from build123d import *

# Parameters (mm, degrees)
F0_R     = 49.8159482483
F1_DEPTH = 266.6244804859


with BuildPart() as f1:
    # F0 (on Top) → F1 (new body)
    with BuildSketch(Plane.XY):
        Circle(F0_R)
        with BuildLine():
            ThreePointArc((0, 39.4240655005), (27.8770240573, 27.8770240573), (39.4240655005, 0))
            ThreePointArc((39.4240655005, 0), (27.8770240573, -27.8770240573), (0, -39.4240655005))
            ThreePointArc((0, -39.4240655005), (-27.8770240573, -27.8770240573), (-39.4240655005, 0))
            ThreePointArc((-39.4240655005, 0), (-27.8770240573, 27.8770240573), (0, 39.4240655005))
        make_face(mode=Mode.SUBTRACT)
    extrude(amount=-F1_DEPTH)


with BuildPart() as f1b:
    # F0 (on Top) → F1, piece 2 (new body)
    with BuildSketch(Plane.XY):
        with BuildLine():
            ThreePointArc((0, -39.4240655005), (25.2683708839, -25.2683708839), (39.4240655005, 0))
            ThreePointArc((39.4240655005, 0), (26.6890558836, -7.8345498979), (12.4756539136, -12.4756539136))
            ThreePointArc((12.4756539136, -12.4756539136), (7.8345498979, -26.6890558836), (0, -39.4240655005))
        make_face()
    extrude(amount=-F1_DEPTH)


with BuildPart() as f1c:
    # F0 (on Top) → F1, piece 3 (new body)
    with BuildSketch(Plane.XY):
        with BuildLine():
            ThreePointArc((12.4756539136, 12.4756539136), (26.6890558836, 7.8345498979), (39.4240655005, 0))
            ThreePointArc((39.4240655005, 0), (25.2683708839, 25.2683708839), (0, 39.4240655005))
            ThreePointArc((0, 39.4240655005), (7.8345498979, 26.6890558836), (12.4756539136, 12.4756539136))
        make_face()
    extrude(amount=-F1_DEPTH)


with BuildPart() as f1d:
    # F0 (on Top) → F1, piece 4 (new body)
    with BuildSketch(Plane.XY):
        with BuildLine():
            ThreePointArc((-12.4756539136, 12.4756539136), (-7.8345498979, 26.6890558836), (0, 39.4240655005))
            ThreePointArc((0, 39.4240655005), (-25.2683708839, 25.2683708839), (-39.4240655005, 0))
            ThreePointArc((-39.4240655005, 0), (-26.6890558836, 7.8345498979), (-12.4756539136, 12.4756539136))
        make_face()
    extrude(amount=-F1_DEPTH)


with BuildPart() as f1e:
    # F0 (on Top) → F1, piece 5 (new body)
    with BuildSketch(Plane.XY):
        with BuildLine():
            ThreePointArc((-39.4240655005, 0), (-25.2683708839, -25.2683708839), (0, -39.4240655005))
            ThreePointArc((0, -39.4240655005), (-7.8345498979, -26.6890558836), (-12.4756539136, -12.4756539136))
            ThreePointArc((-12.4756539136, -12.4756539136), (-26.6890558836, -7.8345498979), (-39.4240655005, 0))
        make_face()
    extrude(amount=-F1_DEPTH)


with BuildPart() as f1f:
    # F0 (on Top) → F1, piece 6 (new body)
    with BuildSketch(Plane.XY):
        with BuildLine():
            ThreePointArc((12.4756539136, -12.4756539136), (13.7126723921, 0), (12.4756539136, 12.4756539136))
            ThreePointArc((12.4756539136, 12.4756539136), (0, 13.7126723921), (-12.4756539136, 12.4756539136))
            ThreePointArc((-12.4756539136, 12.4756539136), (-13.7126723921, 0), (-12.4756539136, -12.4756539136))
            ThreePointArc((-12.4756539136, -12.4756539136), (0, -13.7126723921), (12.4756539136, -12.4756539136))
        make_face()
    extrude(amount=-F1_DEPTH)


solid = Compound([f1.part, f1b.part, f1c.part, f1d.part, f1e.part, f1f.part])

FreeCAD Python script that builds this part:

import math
import FreeCAD as App
import Part
import Sketcher

V = App.Vector
Q = App.Units.Quantity

doc = App.newDocument("Part")
body = doc.addObject("PartDesign::Body", "Body")

# Sketch on XY plane
sketch1 = body.newObject("Sketcher::SketchObject", "Sketch")
sketch1.AttachmentSupport = (doc.getObject("XY_Plane"), [""])
sketch1.MapMode = "FlatFace"
sketch1.addGeometry(Part.Circle(V(0, 0, 0), V(0, 0, 1), 50), False)
sketch1.addGeometry(Part.ArcOfCircle(Part.Circle(V(0, 0, 0), V(0, 0, 1), 39), math.radians(90), math.radians(180)), False)
sketch1.addGeometry(Part.ArcOfCircle(Part.Circle(V(0, 0, 0), V(0, 0, 1), 39), math.radians(0), math.radians(90)), False)
sketch1.addGeometry(Part.ArcOfCircle(Part.Circle(V(0, 0, 0), V(0, 0, 1), 39), math.radians(-90), math.radians(0)), False)
sketch1.addGeometry(Part.ArcOfCircle(Part.Circle(V(0, 0, 0), V(0, 0, 1), 39), math.radians(180), math.radians(270)), False)
sketch1.addConstraint(Sketcher.Constraint("Tangent", 1, 1, 2, 2))
sketch1.addConstraint(Sketcher.Constraint("Tangent", 2, 1, 3, 2))
sketch1.addConstraint(Sketcher.Constraint("Tangent", 3, 1, 4, 2))
sketch1.addConstraint(Sketcher.Constraint("Tangent", 4, 1, 1, 2))
sketch1.addConstraint(Sketcher.Constraint("Coincident", 0, 3, -1, 1))
sketch1.addConstraint(Sketcher.Constraint("Coincident", 1, 3, -1, 1))
sketch1.addConstraint(Sketcher.Constraint("Equal", 1, 2))
sketch1.addConstraint(Sketcher.Constraint("PointOnObject", 1, 1, -2))
sketch1.addConstraint(Sketcher.Constraint("PointOnObject", 2, 1, -1))
sketch1.addConstraint(Sketcher.Constraint("PointOnObject", 3, 1, -2))
sketch1.addConstraint(Sketcher.Constraint("PointOnObject", 4, 1, -1))
sketch1.addConstraint(Sketcher.Constraint("Diameter", 0, Q("99.631896 mm")))
sketch1.addConstraint(Sketcher.Constraint("Radius", 1, Q("39.424066 mm")))
pad1 = body.newObject("PartDesign::Pad", "Pad")
pad1.Profile = sketch1
pad1.Length = 266.62448
pad1.Reversed = True
body2 = doc.addObject("PartDesign::Body", "Body001")

# Sketch on XY plane
sketch2 = body2.newObject("Sketcher::SketchObject", "Sketch001")
sketch2.AttachmentSupport = (doc.getObject("XY_Plane001"), [""])
sketch2.MapMode = "FlatFace"
sketch2.addGeometry(Part.ArcOfCircle(Part.Circle(V(-12, 12, 0), V(0, 0, 1), 53), math.radians(-76), math.radians(-14)), False)
sketch2.addGeometry(Part.ArcOfCircle(Part.Circle(V(0, 50, 0), V(0, 0, 1), 64), math.radians(-79), math.radians(-52)), False)
sketch2.addGeometry(Part.ArcOfCircle(Part.Circle(V(-50, 0, 0), V(0, 0, 1), 64), math.radians(-38), math.radians(-11)), False)
sketch2.addConstraint(Sketcher.Constraint("Coincident", 0, 2, 1, 2))
sketch2.addConstraint(Sketcher.Constraint("Coincident", 1, 1, 2, 2))
sketch2.addConstraint(Sketcher.Constraint("Coincident", 2, 1, 0, 1))
sketch2.addConstraint(Sketcher.Constraint("Equal", 1, 2))
sketch2.addConstraint(Sketcher.Constraint("PointOnObject", 1, 3, -2))
sketch2.addConstraint(Sketcher.Constraint("PointOnObject", 2, 3, -1))
sketch2.addConstraint(Sketcher.Constraint("PointOnObject", 0, 2, -1))
sketch2.addConstraint(Sketcher.Constraint("PointOnObject", 2, 1, -2))
sketch2.addConstraint(Sketcher.Constraint("Radius", 0, Q("53.378112 mm")))
sketch2.addConstraint(Sketcher.Constraint("Radius", 1, Q("63.528621 mm")))
sketch2.addConstraint(Sketcher.Constraint("DistanceY", -1, 1, 1, 3, Q("49.815948 mm")))
sketch2.addConstraint(Sketcher.Constraint("DistanceX", 2, 3, -1, 1, Q("49.815948 mm")))
pad2 = body2.newObject("PartDesign::Pad", "Pad001")
pad2.Profile = sketch2
pad2.Length = 266.62448
pad2.Reversed = True
body3 = doc.addObject("PartDesign::Body", "Body002")

# Sketch on XY plane
sketch3 = body3.newObject("Sketcher::SketchObject", "Sketch002")
sketch3.AttachmentSupport = (doc.getObject("XY_Plane002"), [""])
sketch3.MapMode = "FlatFace"
sketch3.addGeometry(Part.ArcOfCircle(Part.Circle(V(0, -50, 0), V(0, 0, 1), 64), math.radians(52), math.radians(79)), False)
sketch3.addGeometry(Part.ArcOfCircle(Part.Circle(V(-12, -12, 0), V(0, 0, 1), 53), math.radians(14), math.radians(76)), False)
sketch3.addGeometry(Part.ArcOfCircle(Part.Circle(V(-50, 0, 0), V(0, 0, 1), 64), math.radians(11), math.radians(38)), False)
sketch3.addConstraint(Sketcher.Constraint("Coincident", 0, 1, 1, 1))
sketch3.addConstraint(Sketcher.Constraint("Coincident", 1, 2, 2, 2))
sketch3.addConstraint(Sketcher.Constraint("Coincident", 2, 1, 0, 2))
sketch3.addConstraint(Sketcher.Constraint("Equal", 0, 2))
sketch3.addConstraint(Sketcher.Constraint("PointOnObject", 0, 3, -2))
sketch3.addConstraint(Sketcher.Constraint("PointOnObject", 2, 3, -1))
sketch3.addConstraint(Sketcher.Constraint("PointOnObject", 0, 1, -1))
sketch3.addConstraint(Sketcher.Constraint("PointOnObject", 1, 2, -2))
sketch3.addConstraint(Sketcher.Constraint("Radius", 0, Q("63.528621 mm")))
sketch3.addConstraint(Sketcher.Constraint("Radius", 1, Q("53.378112 mm")))
sketch3.addConstraint(Sketcher.Constraint("DistanceY", 0, 3, -1, 1, Q("49.815948 mm")))
sketch3.addConstraint(Sketcher.Constraint("DistanceX", 2, 3, -1, 1, Q("49.815948 mm")))
pad3 = body3.newObject("PartDesign::Pad", "Pad002")
pad3.Profile = sketch3
pad3.Length = 266.62448
pad3.Reversed = True
body4 = doc.addObject("PartDesign::Body", "Body003")

# Sketch on XY plane
sketch4 = body4.newObject("Sketcher::SketchObject", "Sketch003")
sketch4.AttachmentSupport = (doc.getObject("XY_Plane003"), [""])
sketch4.MapMode = "FlatFace"
sketch4.addGeometry(Part.ArcOfCircle(Part.Circle(V(50, 0, 0), V(0, 0, 1), 64), math.radians(142), math.radians(169)), False)
sketch4.addGeometry(Part.ArcOfCircle(Part.Circle(V(12, -12, 0), V(0, 0, 1), 53), math.radians(104), math.radians(166)), False)
sketch4.addGeometry(Part.ArcOfCircle(Part.Circle(V(0, -50, 0), V(0, 0, 1), 64), math.radians(101), math.radians(128)), False)
sketch4.addConstraint(Sketcher.Constraint("Coincident", 0, 1, 1, 1))
sketch4.addConstraint(Sketcher.Constraint("Coincident", 1, 2, 2, 2))
sketch4.addConstraint(Sketcher.Constraint("Coincident", 2, 1, 0, 2))
sketch4.addConstraint(Sketcher.Constraint("Equal", 0, 2))
sketch4.addConstraint(Sketcher.Constraint("PointOnObject", 0, 3, -1))
sketch4.addConstraint(Sketcher.Constraint("PointOnObject", 2, 3, -2))
sketch4.addConstraint(Sketcher.Constraint("PointOnObject", 0, 1, -2))
sketch4.addConstraint(Sketcher.Constraint("PointOnObject", 1, 2, -1))
sketch4.addConstraint(Sketcher.Constraint("Radius", 0, Q("63.528621 mm")))
sketch4.addConstraint(Sketcher.Constraint("Radius", 1, Q("53.378112 mm")))
sketch4.addConstraint(Sketcher.Constraint("DistanceX", -1, 1, 0, 3, Q("49.815948 mm")))
sketch4.addConstraint(Sketcher.Constraint("DistanceY", 2, 3, -1, 1, Q("49.815948 mm")))
pad4 = body4.newObject("PartDesign::Pad", "Pad003")
pad4.Profile = sketch4
pad4.Length = 266.62448
pad4.Reversed = True
body5 = doc.addObject("PartDesign::Body", "Body004")

# Sketch on XY plane
sketch5 = body5.newObject("Sketcher::SketchObject", "Sketch004")
sketch5.AttachmentSupport = (doc.getObject("XY_Plane004"), [""])
sketch5.MapMode = "FlatFace"
sketch5.addGeometry(Part.ArcOfCircle(Part.Circle(V(12, 12, 0), V(0, 0, 1), 53), math.radians(-166), math.radians(-104)), False)
sketch5.addGeometry(Part.ArcOfCircle(Part.Circle(V(50, 0, 0), V(0, 0, 1), 64), math.radians(-169), math.radians(-142)), False)
sketch5.addGeometry(Part.ArcOfCircle(Part.Circle(V(0, 50, 0), V(0, 0, 1), 64), math.radians(-128), math.radians(-101)), False)
sketch5.addConstraint(Sketcher.Constraint("Coincident", 0, 2, 1, 2))
sketch5.addConstraint(Sketcher.Constraint("Coincident", 1, 1, 2, 2))
sketch5.addConstraint(Sketcher.Constraint("Coincident", 2, 1, 0, 1))
sketch5.addConstraint(Sketcher.Constraint("Equal", 1, 2))
sketch5.addConstraint(Sketcher.Constraint("PointOnObject", 1, 3, -1))
sketch5.addConstraint(Sketcher.Constraint("PointOnObject", 2, 3, -2))
sketch5.addConstraint(Sketcher.Constraint("PointOnObject", 0, 2, -2))
sketch5.addConstraint(Sketcher.Constraint("PointOnObject", 2, 1, -1))
sketch5.addConstraint(Sketcher.Constraint("Radius", 0, Q("53.378112 mm")))
sketch5.addConstraint(Sketcher.Constraint("Radius", 1, Q("63.528621 mm")))
sketch5.addConstraint(Sketcher.Constraint("DistanceX", -1, 1, 1, 3, Q("49.815948 mm")))
sketch5.addConstraint(Sketcher.Constraint("DistanceY", -1, 1, 2, 3, Q("49.815948 mm")))
pad5 = body5.newObject("PartDesign::Pad", "Pad004")
pad5.Profile = sketch5
pad5.Length = 266.62448
pad5.Reversed = True
body6 = doc.addObject("PartDesign::Body", "Body005")

# Sketch on XY plane
sketch6 = body6.newObject("Sketcher::SketchObject", "Sketch005")
sketch6.AttachmentSupport = (doc.getObject("XY_Plane005"), [""])
sketch6.MapMode = "FlatFace"
sketch6.addGeometry(Part.ArcOfCircle(Part.Circle(V(-50, 0, 0), V(0, 0, 1), 64), math.radians(-11), math.radians(11)), False)
sketch6.addGeometry(Part.ArcOfCircle(Part.Circle(V(0, -50, 0), V(0, 0, 1), 64), math.radians(79), math.radians(101)), False)
sketch6.addGeometry(Part.ArcOfCircle(Part.Circle(V(50, 0, 0), V(0, 0, 1), 64), math.radians(169), math.radians(191)), False)
sketch6.addGeometry(Part.ArcOfCircle(Part.Circle(V(0, 50, 0), V(0, 0, 1), 64), math.radians(-101), math.radians(-79)), False)
sketch6.addConstraint(Sketcher.Constraint("Coincident", 0, 2, 1, 1))
sketch6.addConstraint(Sketcher.Constraint("Coincident", 1, 2, 2, 1))
sketch6.addConstraint(Sketcher.Constraint("Coincident", 2, 2, 3, 1))
sketch6.addConstraint(Sketcher.Constraint("Coincident", 3, 2, 0, 1))
sketch6.addConstraint(Sketcher.Constraint("Equal", 0, 1))
sketch6.addConstraint(Sketcher.Constraint("Equal", 1, 2))
sketch6.addConstraint(Sketcher.Constraint("Equal", 2, 3))
sketch6.addConstraint(Sketcher.Constraint("Symmetric", 0, 3, 2, 3, -1, 1))
sketch6.addConstraint(Sketcher.Constraint("Symmetric", 1, 3, 3, 3, -1, 1))
sketch6.addConstraint(Sketcher.Constraint("Symmetric", 0, 2, 1, 2, -2))
sketch6.addConstraint(Sketcher.Constraint("Radius", 0, Q("63.528621 mm")))
sketch6.addConstraint(Sketcher.Constraint("DistanceX", 0, 3, -1, 1, Q("49.815948 mm")))
sketch6.addConstraint(Sketcher.Constraint("DistanceY", 1, 3, -1, 1, Q("49.815948 mm")))
pad6 = body6.newObject("PartDesign::Pad", "Pad005")
pad6.Profile = sketch6
pad6.Length = 266.62448
pad6.Reversed = True

doc.recompute()
